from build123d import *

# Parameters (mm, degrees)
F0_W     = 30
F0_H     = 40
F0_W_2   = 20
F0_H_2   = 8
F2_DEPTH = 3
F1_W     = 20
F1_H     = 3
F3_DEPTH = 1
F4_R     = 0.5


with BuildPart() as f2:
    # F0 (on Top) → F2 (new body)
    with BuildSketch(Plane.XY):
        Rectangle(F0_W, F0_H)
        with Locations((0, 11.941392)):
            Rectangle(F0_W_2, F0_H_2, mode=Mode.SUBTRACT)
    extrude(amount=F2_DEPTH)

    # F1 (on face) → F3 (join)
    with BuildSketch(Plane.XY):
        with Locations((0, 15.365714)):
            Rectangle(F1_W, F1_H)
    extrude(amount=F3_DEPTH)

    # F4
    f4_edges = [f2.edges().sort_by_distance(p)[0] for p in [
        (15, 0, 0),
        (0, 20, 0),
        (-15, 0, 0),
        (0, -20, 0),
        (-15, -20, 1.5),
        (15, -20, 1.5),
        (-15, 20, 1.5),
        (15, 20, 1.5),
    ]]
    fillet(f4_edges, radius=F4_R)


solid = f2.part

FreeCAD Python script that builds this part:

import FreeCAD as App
import Part
import Sketcher

V = App.Vector


def edges_at(feature, points):
    """Names of the edges that pass closest to the given points."""
    edges = feature.Shape.Edges
    near = lambda p: min(range(len(edges)), key=lambda i: edges[i].distToShape(Part.Vertex(*p))[0])
    return sorted({f"Edge{near(p) + 1}" for p in points})


def add_polygon(sketch, points):
    """Adds a closed chain of lines whose ends are joined by coincident constraints."""
    first, n = sketch.GeometryCount, len(points)
    for a, b in zip(points, points[1:] + points[:1]):
        sketch.addGeometry(Part.LineSegment(App.Vector(*a, 0), App.Vector(*b, 0)), False)
    for i in range(n):
        sketch.addConstraint(Sketcher.Constraint("Coincident", first + i, 2, first + (i + 1) % n, 1))

doc = App.newDocument("Part")
body = doc.addObject("PartDesign::Body", "Body")

sketch1 = doc.addObject("Sketcher::SketchObject", "Sketch")
body.addObject(sketch1)
sketch1.AttachmentSupport = (doc.XY_Plane, [""])
sketch1.MapMode = "FlatFace"
add_polygon(sketch1, [(-15, 20), (-15, -20), (15, -20), (15, 20)])
add_polygon(sketch1, [(10, 7.941392), (-10, 7.941392), (-10, 15.941392), (10, 15.941392)])
sketch1.addConstraint([
    Sketcher.Constraint("Vertical", 0),
    Sketcher.Constraint("Horizontal", 1),
    Sketcher.Constraint("Vertical", 2),
    Sketcher.Constraint("Horizontal", 3),
    Sketcher.Constraint("Horizontal", 4),
    Sketcher.Constraint("Vertical", 5),
    Sketcher.Constraint("Horizontal", 6),
    Sketcher.Constraint("Vertical", 7),
    Sketcher.Constraint("Symmetric", 0, 2, 2, 2, -1, 1),
    Sketcher.Constraint("DistanceX", 1, 1, 1, 2, 30.0),
    Sketcher.Constraint("DistanceX", 4, 2, 4, 1, 20.0),
    Sketcher.Constraint("DistanceY", 0, 2, 0, 1, 40.0),
    Sketcher.Constraint("DistanceY", 5, 1, 5, 2, 8.0),
    Sketcher.Constraint("DistanceX", 4, 2, -1, 1, 10.0),
    Sketcher.Constraint("DistanceY", -1, 1, 4, 2, 7.941392),
])
pad1 = doc.addObject("PartDesign::Pad", "Pad")
body.addObject(pad1)
pad1.Profile = sketch1
pad1.Length = 3

sketch2 = doc.addObject("Sketcher::SketchObject", "Sketch001")
body.addObject(sketch2)
sketch2.AttachmentSupport = (doc.XY_Plane, [""])
sketch2.MapMode = "FlatFace"
add_polygon(sketch2, [(-10, 16.865714), (-10, 13.865714), (10, 13.865714), (10, 16.865714)])
sketch2.addConstraint([
    Sketcher.Constraint("Vertical", 0),
    Sketcher.Constraint("Horizontal", 1),
    Sketcher.Constraint("Vertical", 2),
    Sketcher.Constraint("Horizontal", 3),
    Sketcher.Constraint("DistanceX", 1, 1, 1, 2, 20.0),
    Sketcher.Constraint("DistanceY", 0, 2, 0, 1, 3.0),
    Sketcher.Constraint("DistanceX", 0, 2, -1, 1, 10.0),
    Sketcher.Constraint("DistanceY", -1, 1, 0, 2, 13.865714),
])
pad2 = doc.addObject("PartDesign::Pad", "Pad001")
body.addObject(pad2)
pad2.Profile = sketch2
pad2.Length = 1
doc.recompute()

fillet = doc.addObject("PartDesign::Fillet", "Fillet")
body.addObject(fillet)
fillet.Base = (pad2, edges_at(pad2, [
    (15, 0, 0),
    (0, 20, 0),
    (-15, 0, 0),
    (0, -20, 0),
    (-15, -20, 1.5),
    (15, -20, 1.5),
    (-15, 20, 1.5),
    (15, 20, 1.5),
]))
fillet.Radius = 0.5

doc.recompute()
